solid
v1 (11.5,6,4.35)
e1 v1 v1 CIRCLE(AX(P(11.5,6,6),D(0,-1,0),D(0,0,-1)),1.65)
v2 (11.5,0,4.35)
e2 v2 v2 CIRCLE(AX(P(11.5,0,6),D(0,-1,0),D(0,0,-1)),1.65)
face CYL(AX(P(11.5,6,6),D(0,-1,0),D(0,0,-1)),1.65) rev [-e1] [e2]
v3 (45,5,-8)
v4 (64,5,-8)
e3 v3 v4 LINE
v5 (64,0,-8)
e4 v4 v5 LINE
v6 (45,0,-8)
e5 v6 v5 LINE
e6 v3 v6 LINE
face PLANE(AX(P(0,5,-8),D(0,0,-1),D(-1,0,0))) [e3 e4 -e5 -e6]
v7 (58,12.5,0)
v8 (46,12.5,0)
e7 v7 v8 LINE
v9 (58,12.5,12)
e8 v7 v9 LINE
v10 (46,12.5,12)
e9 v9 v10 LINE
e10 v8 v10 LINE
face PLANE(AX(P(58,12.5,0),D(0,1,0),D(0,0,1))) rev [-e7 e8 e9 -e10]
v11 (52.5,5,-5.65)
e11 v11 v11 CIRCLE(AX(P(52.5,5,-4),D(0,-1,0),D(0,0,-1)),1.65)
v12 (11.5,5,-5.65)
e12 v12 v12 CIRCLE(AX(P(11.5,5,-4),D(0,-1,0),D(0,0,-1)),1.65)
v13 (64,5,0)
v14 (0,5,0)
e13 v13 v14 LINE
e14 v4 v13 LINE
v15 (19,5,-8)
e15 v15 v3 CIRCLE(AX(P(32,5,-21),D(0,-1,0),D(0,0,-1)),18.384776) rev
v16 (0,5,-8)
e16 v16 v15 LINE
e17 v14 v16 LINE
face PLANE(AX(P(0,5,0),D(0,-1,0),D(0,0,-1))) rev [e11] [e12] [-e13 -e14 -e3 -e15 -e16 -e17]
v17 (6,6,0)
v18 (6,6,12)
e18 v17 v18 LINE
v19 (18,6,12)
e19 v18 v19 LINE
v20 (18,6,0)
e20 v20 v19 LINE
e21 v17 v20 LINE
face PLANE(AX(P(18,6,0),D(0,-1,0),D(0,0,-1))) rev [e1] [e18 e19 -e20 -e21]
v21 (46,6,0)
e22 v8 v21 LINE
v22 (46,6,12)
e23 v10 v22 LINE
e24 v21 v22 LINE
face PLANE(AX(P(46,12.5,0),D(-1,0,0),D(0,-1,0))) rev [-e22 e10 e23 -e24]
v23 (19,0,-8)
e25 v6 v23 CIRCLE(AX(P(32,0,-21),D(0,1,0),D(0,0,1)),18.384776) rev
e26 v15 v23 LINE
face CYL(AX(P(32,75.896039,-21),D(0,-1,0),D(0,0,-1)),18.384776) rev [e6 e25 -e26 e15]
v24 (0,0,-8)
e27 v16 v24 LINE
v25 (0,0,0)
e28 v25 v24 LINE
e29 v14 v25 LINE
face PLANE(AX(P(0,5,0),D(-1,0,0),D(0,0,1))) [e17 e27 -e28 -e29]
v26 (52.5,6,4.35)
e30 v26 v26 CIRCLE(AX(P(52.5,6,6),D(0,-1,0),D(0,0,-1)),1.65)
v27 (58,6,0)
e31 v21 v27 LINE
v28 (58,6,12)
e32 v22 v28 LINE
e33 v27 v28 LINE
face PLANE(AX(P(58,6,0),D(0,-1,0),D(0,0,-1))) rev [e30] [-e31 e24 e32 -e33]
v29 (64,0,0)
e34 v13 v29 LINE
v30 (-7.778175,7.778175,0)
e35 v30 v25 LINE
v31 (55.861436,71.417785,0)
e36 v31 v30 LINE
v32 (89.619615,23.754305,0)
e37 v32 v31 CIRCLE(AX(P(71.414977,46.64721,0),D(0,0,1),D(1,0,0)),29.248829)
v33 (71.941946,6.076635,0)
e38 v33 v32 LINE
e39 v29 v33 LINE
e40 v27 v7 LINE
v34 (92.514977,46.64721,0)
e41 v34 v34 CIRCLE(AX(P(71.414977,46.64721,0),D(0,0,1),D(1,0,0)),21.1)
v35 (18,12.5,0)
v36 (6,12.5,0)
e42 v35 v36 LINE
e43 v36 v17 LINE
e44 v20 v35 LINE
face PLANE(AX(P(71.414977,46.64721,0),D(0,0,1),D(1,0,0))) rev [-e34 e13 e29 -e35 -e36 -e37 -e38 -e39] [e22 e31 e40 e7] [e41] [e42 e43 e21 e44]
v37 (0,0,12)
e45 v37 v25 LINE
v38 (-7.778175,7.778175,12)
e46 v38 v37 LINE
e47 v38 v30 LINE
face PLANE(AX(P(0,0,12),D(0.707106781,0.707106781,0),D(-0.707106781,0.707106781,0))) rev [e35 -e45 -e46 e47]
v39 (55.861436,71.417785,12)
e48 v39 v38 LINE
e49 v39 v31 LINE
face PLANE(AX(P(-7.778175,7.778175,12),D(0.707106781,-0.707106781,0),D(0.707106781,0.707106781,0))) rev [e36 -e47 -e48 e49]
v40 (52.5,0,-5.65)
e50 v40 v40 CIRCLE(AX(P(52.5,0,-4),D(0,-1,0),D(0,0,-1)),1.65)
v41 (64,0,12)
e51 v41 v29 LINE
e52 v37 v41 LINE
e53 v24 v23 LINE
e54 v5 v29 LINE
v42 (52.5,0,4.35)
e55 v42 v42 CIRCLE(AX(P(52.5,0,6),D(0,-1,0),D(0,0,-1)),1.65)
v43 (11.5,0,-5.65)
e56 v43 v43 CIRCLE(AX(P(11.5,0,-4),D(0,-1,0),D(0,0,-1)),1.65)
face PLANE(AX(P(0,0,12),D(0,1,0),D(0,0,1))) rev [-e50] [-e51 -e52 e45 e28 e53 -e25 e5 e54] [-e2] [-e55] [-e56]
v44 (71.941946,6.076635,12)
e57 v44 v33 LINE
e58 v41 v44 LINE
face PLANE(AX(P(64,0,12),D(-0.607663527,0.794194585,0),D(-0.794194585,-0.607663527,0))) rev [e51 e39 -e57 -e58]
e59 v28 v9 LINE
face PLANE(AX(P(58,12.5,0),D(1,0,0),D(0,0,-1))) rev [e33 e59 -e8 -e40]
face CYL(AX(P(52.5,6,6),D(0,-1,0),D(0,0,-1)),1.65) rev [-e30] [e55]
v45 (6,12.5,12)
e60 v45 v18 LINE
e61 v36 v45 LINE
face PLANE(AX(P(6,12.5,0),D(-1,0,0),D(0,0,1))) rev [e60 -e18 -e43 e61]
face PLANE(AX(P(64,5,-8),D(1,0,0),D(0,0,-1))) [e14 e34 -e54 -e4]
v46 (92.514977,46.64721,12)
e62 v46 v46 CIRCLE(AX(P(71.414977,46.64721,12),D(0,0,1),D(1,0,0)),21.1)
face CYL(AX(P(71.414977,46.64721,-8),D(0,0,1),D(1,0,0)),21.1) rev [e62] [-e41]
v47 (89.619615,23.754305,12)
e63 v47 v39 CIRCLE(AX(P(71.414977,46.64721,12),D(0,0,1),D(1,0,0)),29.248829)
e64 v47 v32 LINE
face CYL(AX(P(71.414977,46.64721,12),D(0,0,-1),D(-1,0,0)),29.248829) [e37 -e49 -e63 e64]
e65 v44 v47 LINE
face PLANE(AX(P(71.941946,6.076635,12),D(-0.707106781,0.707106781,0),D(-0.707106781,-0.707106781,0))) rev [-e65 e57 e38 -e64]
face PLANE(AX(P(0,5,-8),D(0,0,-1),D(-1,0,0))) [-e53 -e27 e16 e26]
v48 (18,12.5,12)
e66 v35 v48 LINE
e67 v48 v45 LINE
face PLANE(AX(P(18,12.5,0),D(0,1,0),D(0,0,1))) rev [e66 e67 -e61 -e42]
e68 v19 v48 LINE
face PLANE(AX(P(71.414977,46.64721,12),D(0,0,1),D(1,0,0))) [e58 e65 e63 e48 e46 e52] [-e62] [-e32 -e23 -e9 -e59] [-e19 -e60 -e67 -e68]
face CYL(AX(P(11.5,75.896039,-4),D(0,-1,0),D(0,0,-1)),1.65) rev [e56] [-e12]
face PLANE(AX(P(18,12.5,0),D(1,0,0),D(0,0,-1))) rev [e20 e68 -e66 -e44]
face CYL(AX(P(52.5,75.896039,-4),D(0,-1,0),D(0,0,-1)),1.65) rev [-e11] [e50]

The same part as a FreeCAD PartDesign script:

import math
import FreeCAD as App
import Part
import Sketcher

V = App.Vector
Q = App.Units.Quantity


def add_polygon(sketch, points):
    """Adds a closed chain of lines whose ends are joined by coincident constraints."""
    first, n = sketch.GeometryCount, len(points)
    for a, b in zip(points, points[1:] + points[:1]):
        sketch.addGeometry(Part.LineSegment(App.Vector(*a, 0), App.Vector(*b, 0)), False)
    for i in range(n):
        sketch.addConstraint(Sketcher.Constraint("Coincident", first + i, 2, first + (i + 1) % n, 1))

doc = App.newDocument("Part")
body = doc.addObject("PartDesign::Body", "Body")

# Sketch on XY plane
sketch1 = doc.addObject("Sketcher::SketchObject", "Sketch")
body.addObject(sketch1)
sketch1.AttachmentSupport = (doc.XY_Plane, [""])
sketch1.MapMode = "FlatFace"
sketch1.addGeometry([
    Part.LineSegment(V(0, 0, 0), V(64, 0, 0)),  # 0
    Part.LineSegment(V(64, 0, 0), V(72, 6, 0)),  # 1
    Part.LineSegment(V(72, 6, 0), V(90, 24, 0)),  # 2
    Part.ArcOfCircle(Part.Circle(V(71, 47, 0), V(0, 0, 1), 29), math.radians(-52), math.radians(122)),  # 3
    Part.LineSegment(V(56, 71, 0), V(-8, 8, 0)),  # 4
    Part.LineSegment(V(-8, 8, 0), V(0, 0, 0)),  # 5
], False)
sketch1.addConstraint([
    Sketcher.Constraint("Coincident", 0, 2, 1, 1),
    Sketcher.Constraint("Coincident", 1, 2, 2, 1),
    Sketcher.Constraint("Coincident", 2, 2, 3, 1),
    Sketcher.Constraint("Coincident", 3, 2, 4, 1),
    Sketcher.Constraint("Coincident", 4, 2, 5, 1),
    Sketcher.Constraint("Coincident", 5, 2, 0, 1),
    Sketcher.Constraint("Horizontal", 0),
    Sketcher.Constraint("Coincident", 5, 2, -1, 1),
    Sketcher.Constraint("Parallel", 2, 4),
    Sketcher.Constraint("Perpendicular", 4, 5),
    Sketcher.Constraint("DistanceX", 0, 1, 0, 2, Q("64 mm")),
    Sketcher.Constraint("Angle", 2, Q("45 deg")),
    Sketcher.Constraint("Distance", 1, Q("10 mm")),
    Sketcher.Constraint("Distance", 2, Q("25 mm")),
    Sketcher.Constraint("Distance", 4, Q("90 mm")),
    Sketcher.Constraint("Distance", 5, Q("11 mm")),
    Sketcher.Constraint("Radius", 3, Q("29.248829 mm")),
    Sketcher.Constraint("DistanceY", -1, 1, 3, 3, Q("46.64721 mm")),
])
pad1 = doc.addObject("PartDesign::Pad", "Pad")
body.addObject(pad1)
pad1.Profile = sketch1
pad1.Length = 12

# Sketch on XZ plane
sketch2 = doc.addObject("Sketcher::SketchObject", "Sketch001")
body.addObject(sketch2)
sketch2.AttachmentSupport = (doc.XZ_Plane, [""])
sketch2.MapMode = "FlatFace"
sketch2.addGeometry([
    Part.Circle(V(11.5, 6, 0), V(0, 0, 1), 1.6),
    Part.Circle(V(52.5, 6, 0), V(0, 0, 1), 1.6),
], False)
sketch2.addConstraint([
    Sketcher.Constraint("Equal", 0, 1),
    Sketcher.Constraint("Horizontal", 0, 3, 1, 3),
    Sketcher.Constraint("Diameter", 0, Q("3.3 mm")),
    Sketcher.Constraint("DistanceY", -1, 1, 0, 3, Q("6 mm")),
    Sketcher.Constraint("DistanceX", 0, 3, 1, 3, Q("41 mm")),
    Sketcher.Constraint("DistanceX", -1, 1, 0, 3, Q("11.5 mm")),
])
pocket1 = doc.addObject("PartDesign::Pocket", "Pocket")
body.addObject(pocket1)
pocket1.Profile = sketch2
pocket1.Length = 6

# Sketch on XY plane
sketch3 = doc.addObject("Sketcher::SketchObject", "Sketch002")
body.addObject(sketch3)
sketch3.AttachmentSupport = (doc.XY_Plane, [""])
sketch3.MapMode = "FlatFace"
sketch3.AttachmentOffset = App.Placement(V(0, 0, 12), App.Rotation())
add_polygon(sketch3, [(6, 12), (6, 6), (18, 6), (18, 12)])  # lines 0-3
add_polygon(sketch3, [(46, 12), (46, 6), (58, 6), (58, 12)])  # lines 4-7
sketch3.addConstraint([
    Sketcher.Constraint("Vertical", 0),
    Sketcher.Constraint("Horizontal", 1),
    Sketcher.Constraint("Vertical", 2),
    Sketcher.Constraint("Horizontal", 3),
    Sketcher.Constraint("Vertical", 4),
    Sketcher.Constraint("Horizontal", 5),
    Sketcher.Constraint("Vertical", 6),
    Sketcher.Constraint("Horizontal", 7),
    Sketcher.Constraint("Horizontal", 1, 2, 4, 2),
    Sketcher.Constraint("Horizontal", 3, 2, 6, 2),
    Sketcher.Constraint("Equal", 3, 5),
    Sketcher.Constraint("DistanceX", 1, 1, 1, 2, Q("12 mm")),
    Sketcher.Constraint("DistanceY", 0, 2, 0, 1, Q("6.5 mm")),
    Sketcher.Constraint("DistanceX", -1, 1, 0, 2, Q("6 mm")),
    Sketcher.Constraint("DistanceY", -1, 1, 0, 2, Q("6 mm")),
    Sketcher.Constraint("DistanceX", -1, 1, 4, 2, Q("46 mm")),
])
pocket2 = doc.addObject("PartDesign::Pocket", "Pocket001")
body.addObject(pocket2)
pocket2.Profile = sketch3
pocket2.Type = "ThroughAll"

# Sketch on XZ plane
sketch4 = doc.addObject("Sketcher::SketchObject", "Sketch003")
body.addObject(sketch4)
sketch4.AttachmentSupport = (doc.XZ_Plane, [""])
sketch4.MapMode = "FlatFace"
add_polygon(sketch4, [(0, 0), (0, -8), (64, -8), (64, 0)])  # lines 0-3
sketch4.addConstraint([
    Sketcher.Constraint("Vertical", 0),
    Sketcher.Constraint("Horizontal", 1),
    Sketcher.Constraint("Vertical", 2),
    Sketcher.Constraint("Horizontal", 3),
    Sketcher.Constraint("Coincident", 3, 2, -1, 1),
    Sketcher.Constraint("DistanceX", 1, 1, 1, 2, Q("64 mm")),
    Sketcher.Constraint("DistanceY", 0, 2, 0, 1, Q("8 mm")),
])
pad2 = doc.addObject("PartDesign::Pad", "Pad001")
body.addObject(pad2)
pad2.Profile = sketch4
pad2.Length = 5
pad2.Reversed = True

# Sketch on XZ plane
sketch5 = doc.addObject("Sketcher::SketchObject", "Sketch004")
body.addObject(sketch5)
sketch5.AttachmentSupport = (doc.XZ_Plane, [""])
sketch5.MapMode = "FlatFace"
sketch5.addGeometry([
    Part.Circle(V(11.5, -4, 0), V(0, 0, 1), 1.6),
    Part.Circle(V(52.5, -4, 0), V(0, 0, 1), 1.6),
], False)
sketch5.addConstraint([
    Sketcher.Constraint("Equal", 0, 1),
    Sketcher.Constraint("Horizontal", 0, 3, 1, 3),
    Sketcher.Constraint("Diameter", 0, Q("3.3 mm")),
    Sketcher.Constraint("DistanceY", 0, 3, -1, 1, Q("4 mm")),
    Sketcher.Constraint("DistanceX", 0, 3, 1, 3, Q("41 mm")),
    Sketcher.Constraint("DistanceX", -1, 1, 0, 3, Q("11.5 mm")),
])
pocket3 = doc.addObject("PartDesign::Pocket", "Pocket002")
body.addObject(pocket3)
pocket3.Profile = sketch5
pocket3.Type = "ThroughAll"

# Sketch on XY plane
sketch6 = doc.addObject("Sketcher::SketchObject", "Sketch005")
body.addObject(sketch6)
sketch6.AttachmentSupport = (doc.XY_Plane, [""])
sketch6.MapMode = "FlatFace"
sketch6.AttachmentOffset = App.Placement(V(0, 0, 12), App.Rotation())
sketch6.addGeometry(Part.Circle(V(71, 47, 0), V(0, 0, 1), 21), False)
sketch6.addConstraint([
    Sketcher.Constraint("Diameter", 0, Q("42.2 mm")),
    Sketcher.Constraint("DistanceY", -1, 1, 0, 3, Q("46.64721 mm")),
    Sketcher.Constraint("DistanceX", -1, 1, 0, 3, Q("71.414977 mm")),
])
pocket4 = doc.addObject("PartDesign::Pocket", "Pocket003")
body.addObject(pocket4)
pocket4.Profile = sketch6
pocket4.Type = "ThroughAll"

# Sketch on XZ plane
sketch7 = doc.addObject("Sketcher::SketchObject", "Sketch006")
body.addObject(sketch7)
sketch7.AttachmentSupport = (doc.XZ_Plane, [""])
sketch7.MapMode = "FlatFace"
sketch7.AttachmentOffset = App.Placement(V(0, 0, -5), App.Rotation())
sketch7.addGeometry([
    Part.LineSegment(V(45, -8, 0), V(19, -8, 0)),
    Part.ArcOfCircle(Part.Circle(V(32, -21, 0), V(0, 0, 1), 18), math.radians(45), math.radians(135)),
], False)
sketch7.addConstraint([
    Sketcher.Constraint("Coincident", 0, 1, 1, 1),
    Sketcher.Constraint("Coincident", 1, 2, 0, 2),
    Sketcher.Constraint("Horizontal", 0),
    Sketcher.Constraint("DistanceX", 0, 2, 0, 1, Q("26 mm")),
    Sketcher.Constraint("DistanceX", -1, 1, 1, 3, Q("32 mm")),
    Sketcher.Constraint("DistanceY", 1, 3, -1, 1, Q("21 mm")),
    Sketcher.Constraint("DistanceY", 0, 1, -1, 1, Q("8 mm")),
])
pocket5 = doc.addObject("PartDesign::Pocket", "Pocket004")
body.addObject(pocket5)
pocket5.Profile = sketch7
pocket5.Type = "ThroughAll"
pocket5.Midplane = True

doc.recompute()
